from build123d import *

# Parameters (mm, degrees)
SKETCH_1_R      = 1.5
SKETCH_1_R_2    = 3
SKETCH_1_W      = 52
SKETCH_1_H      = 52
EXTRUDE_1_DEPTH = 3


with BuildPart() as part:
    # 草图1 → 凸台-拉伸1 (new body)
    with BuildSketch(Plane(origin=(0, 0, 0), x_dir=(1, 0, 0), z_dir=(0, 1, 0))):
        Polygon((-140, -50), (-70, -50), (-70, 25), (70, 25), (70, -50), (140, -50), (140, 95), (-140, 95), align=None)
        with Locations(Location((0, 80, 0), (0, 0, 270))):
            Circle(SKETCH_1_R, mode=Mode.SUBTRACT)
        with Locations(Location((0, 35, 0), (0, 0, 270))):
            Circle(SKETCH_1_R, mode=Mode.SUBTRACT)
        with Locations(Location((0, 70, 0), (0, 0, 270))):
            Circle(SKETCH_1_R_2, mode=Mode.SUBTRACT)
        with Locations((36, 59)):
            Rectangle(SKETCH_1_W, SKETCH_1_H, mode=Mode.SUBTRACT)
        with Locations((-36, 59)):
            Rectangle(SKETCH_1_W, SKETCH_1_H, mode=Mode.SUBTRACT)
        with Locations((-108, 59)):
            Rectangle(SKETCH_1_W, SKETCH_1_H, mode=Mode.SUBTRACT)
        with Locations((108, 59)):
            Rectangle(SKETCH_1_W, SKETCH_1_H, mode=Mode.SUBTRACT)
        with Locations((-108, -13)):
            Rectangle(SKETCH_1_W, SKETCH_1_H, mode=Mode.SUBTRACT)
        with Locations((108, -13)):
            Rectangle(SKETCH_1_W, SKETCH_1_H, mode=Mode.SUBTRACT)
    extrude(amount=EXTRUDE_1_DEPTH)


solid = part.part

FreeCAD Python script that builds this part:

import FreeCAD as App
import Part
import Sketcher


def add_polygon(sketch, points):
    """Adds a closed chain of lines whose ends are joined by coincident constraints."""
    first, n = sketch.GeometryCount, len(points)
    for a, b in zip(points, points[1:] + points[:1]):
        sketch.addGeometry(Part.LineSegment(App.Vector(*a, 0), App.Vector(*b, 0)), False)
    for i in range(n):
        sketch.addConstraint(Sketcher.Constraint("Coincident", first + i, 2, first + (i + 1) % n, 1))

doc = App.newDocument("Part")
body = doc.addObject("PartDesign::Body", "Body")

sketch1 = body.newObject("Sketcher::SketchObject", "Sketch")
sketch1.AttachmentSupport = (doc.getObject("XZ_Plane"), [""])
sketch1.MapMode = "FlatFace"
add_polygon(sketch1, [(-140, 50), (-70, 50), (-70, -25), (70, -25), (70, 50), (140, 50), (140, -95), (-140, -95)])
add_polygon(sketch1, [(-82, 39), (-134, 39), (-134, -13), (-82, -13)])
add_polygon(sketch1, [(134, 39), (82, 39), (82, -13), (134, -13)])
add_polygon(sketch1, [(-82, -33), (-134, -33), (-134, -85), (-82, -85)])
add_polygon(sketch1, [(-10, -33), (-62, -33), (-62, -85), (-10, -85)])
sketch1.addGeometry(Part.Circle(App.Vector(0, -35, 0), App.Vector(0, 0, 1), 1.5), False)
add_polygon(sketch1, [(62, -33), (10, -33), (10, -85), (62, -85)])
sketch1.addGeometry(Part.Circle(App.Vector(0, -70, 0), App.Vector(0, 0, 1), 3), False)
sketch1.addGeometry(Part.Circle(App.Vector(0, -80, 0), App.Vector(0, 0, 1), 1.5), False)
add_polygon(sketch1, [(134, -33), (82, -33), (82, -85), (134, -85)])
sketch1.addConstraint([
    Sketcher.Constraint("Horizontal", 0),
    Sketcher.Constraint("Vertical", 1),
    Sketcher.Constraint("Horizontal", 2),
    Sketcher.Constraint("Vertical", 3),
    Sketcher.Constraint("Horizontal", 4),
    Sketcher.Constraint("Vertical", 5),
    Sketcher.Constraint("Horizontal", 6),
    Sketcher.Constraint("Vertical", 7),
    Sketcher.Constraint("Horizontal", 8),
    Sketcher.Constraint("Vertical", 9),
    Sketcher.Constraint("Horizontal", 10),
    Sketcher.Constraint("Vertical", 11),
    Sketcher.Constraint("Horizontal", 12),
    Sketcher.Constraint("Vertical", 13),
    Sketcher.Constraint("Horizontal", 14),
    Sketcher.Constraint("Vertical", 15),
    Sketcher.Constraint("Horizontal", 16),
    Sketcher.Constraint("Vertical", 17),
    Sketcher.Constraint("Horizontal", 18),
    Sketcher.Constraint("Vertical", 19),
    Sketcher.Constraint("Horizontal", 20),
    Sketcher.Constraint("Vertical", 21),
    Sketcher.Constraint("Horizontal", 22),
    Sketcher.Constraint("Vertical", 23),
    Sketcher.Constraint("Horizontal", 25),
    Sketcher.Constraint("Vertical", 26),
    Sketcher.Constraint("Horizontal", 27),
    Sketcher.Constraint("Vertical", 28),
    Sketcher.Constraint("Horizontal", 31),
    Sketcher.Constraint("Vertical", 32),
    Sketcher.Constraint("Horizontal", 33),
    Sketcher.Constraint("Vertical", 34),
    Sketcher.Constraint("Equal", 24, 30),
    Sketcher.Constraint("Symmetric", 0, 2, 3, 2, -2),
    Sketcher.Constraint("Symmetric", 11, 2, 12, 2, -2),
    Sketcher.Constraint("Symmetric", 9, 2, 14, 2, -2),
    Sketcher.Constraint("Symmetric", 23, 2, 25, 2, -2),
    Sketcher.Constraint("Symmetric", 21, 2, 27, 2, -2),
    Sketcher.Constraint("Symmetric", 19, 2, 31, 2, -2),
    Sketcher.Constraint("Symmetric", 17, 2, 33, 2, -2),
    Sketcher.Constraint("PointOnObject", 24, 3, -2),
    Sketcher.Constraint("PointOnObject", 29, 3, -2),
    Sketcher.Constraint("PointOnObject", 30, 3, -2),
    Sketcher.Constraint("Horizontal", 19, 2, 20, 2),
    Sketcher.Constraint("Horizontal", 18, 2, 21, 2),
    Sketcher.Constraint("Vertical", 9, 2, 16, 2),
    Sketcher.Constraint("Vertical", 11, 2, 18, 2),
    Sketcher.Constraint("Equal", 0, 4),
    Sketcher.Constraint("Equal", 18, 20),
    Sketcher.Constraint("Equal", 33, 9),
    Sketcher.Constraint("Equal", 15, 17),
    Sketcher.Constraint("Diameter", 24, 3.0),
    Sketcher.Constraint("Diameter", 29, 6.0),
    Sketcher.Constraint("DistanceX", 0, 1, 0, 2, 70.0),
    Sketcher.Constraint("DistanceX", 2, 1, 2, 2, 140.0),
    Sketcher.Constraint("DistanceX", 8, 2, 8, 1, 52.0),
    Sketcher.Constraint("DistanceY", 1, 2, 1, 1, 75.0),
    Sketcher.Constraint("DistanceY", 5, 2, 5, 1, 145.0),
    Sketcher.Constraint("DistanceY", 24, 3, -1, 1, 35.0),
    Sketcher.Constraint("DistanceY", 29, 3, -1, 1, 70.0),
    Sketcher.Constraint("DistanceY", 30, 3, -1, 1, 80.0),
    Sketcher.Constraint("DistanceY", -1, 1, 0, 2, 50.0),
    Sketcher.Constraint("DistanceX", 8, 2, -1, 1, 134.0),
    Sketcher.Constraint("DistanceY", -1, 1, 8, 2, 39.0),
    Sketcher.Constraint("DistanceY", 16, 2, -1, 1, 33.0),
    Sketcher.Constraint("DistanceX", 20, 2, -1, 1, 62.0),
])
pad1 = body.newObject("PartDesign::Pad", "Pad")
pad1.Profile = sketch1
pad1.Length = 3
pad1.Reversed = True

doc.recompute()
